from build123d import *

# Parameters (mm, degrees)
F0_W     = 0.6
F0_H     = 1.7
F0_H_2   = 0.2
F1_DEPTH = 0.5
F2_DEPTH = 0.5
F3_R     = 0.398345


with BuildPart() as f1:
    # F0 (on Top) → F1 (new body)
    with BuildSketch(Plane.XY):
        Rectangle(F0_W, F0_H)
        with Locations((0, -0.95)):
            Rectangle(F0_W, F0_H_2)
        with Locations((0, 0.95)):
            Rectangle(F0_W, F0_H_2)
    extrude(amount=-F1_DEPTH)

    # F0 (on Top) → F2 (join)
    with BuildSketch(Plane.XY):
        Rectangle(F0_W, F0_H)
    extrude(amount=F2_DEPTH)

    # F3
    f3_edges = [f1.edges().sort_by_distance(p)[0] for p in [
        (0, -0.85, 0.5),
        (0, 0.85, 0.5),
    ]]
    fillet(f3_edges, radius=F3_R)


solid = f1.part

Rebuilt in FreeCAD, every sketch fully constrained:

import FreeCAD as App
import Part
import Sketcher


def edges_at(feature, points):
    """Names of the edges that pass closest to the given points."""
    edges = feature.Shape.Edges
    near = lambda p: min(range(len(edges)), key=lambda i: edges[i].distToShape(Part.Vertex(*p))[0])
    return sorted({f"Edge{near(p) + 1}" for p in points})


def add_polygon(sketch, points):
    """Adds a closed chain of lines whose ends are joined by coincident constraints."""
    first, n = sketch.GeometryCount, len(points)
    for a, b in zip(points, points[1:] + points[:1]):
        sketch.addGeometry(Part.LineSegment(App.Vector(*a, 0), App.Vector(*b, 0)), False)
    for i in range(n):
        sketch.addConstraint(Sketcher.Constraint("Coincident", first + i, 2, first + (i + 1) % n, 1))

doc = App.newDocument("Part")
params = doc.addObject("Spreadsheet::Sheet", "Params")
for row, (alias, value) in enumerate([
    ("sketch1_width", "0.6 mm"),
    ("sketch1_height", "2.1 mm"),
    ("pad1_length", "0.5 mm"),
    ("sketch2_width", "0.6 mm"),
    ("sketch2_height", "1.7 mm"),
    ("pad2_length", "0.5 mm"),
    ("fillet_radius", "0.398345 mm"),
], start=1):
    params.set(f"A{row}", alias)
    params.set(f"B{row}", "=" + value)
    params.setAlias(f"B{row}", alias)

body = doc.addObject("PartDesign::Body", "Body")

# Sketch on XY plane
sketch1 = body.newObject("Sketcher::SketchObject", "Sketch")
sketch1.AttachmentSupport = (doc.getObject("XY_Plane"), [""])
sketch1.MapMode = "FlatFace"
add_polygon(sketch1, [(-0.3, -1.05), (0.3, -1.05), (0.3, 1.05), (-0.3, 1.05)])  # lines 0-3
sketch1.addConstraint(Sketcher.Constraint("Horizontal", 0))
sketch1.addConstraint(Sketcher.Constraint("Vertical", 1))
sketch1.addConstraint(Sketcher.Constraint("Horizontal", 2))
sketch1.addConstraint(Sketcher.Constraint("Vertical", 3))
sketch1.addConstraint(Sketcher.Constraint("Symmetric", 0, 2, 2, 2, -1, 1))
sketch1.addConstraint(Sketcher.Constraint("DistanceX", 0, 1, 0, 2, 0.6))
sketch1.addConstraint(Sketcher.Constraint("DistanceY", 1, 1, 1, 2, 2.1))
sketch1.setExpression("Constraints[9]", "Params.sketch1_width")
sketch1.setExpression("Constraints[10]", "Params.sketch1_height")
pad1 = body.newObject("PartDesign::Pad", "Pad")
pad1.Profile = sketch1
pad1.setExpression("Length", "Params.pad1_length")
pad1.Reversed = True

# Sketch on XY plane
sketch2 = body.newObject("Sketcher::SketchObject", "Sketch001")
sketch2.AttachmentSupport = (doc.getObject("XY_Plane"), [""])
sketch2.MapMode = "FlatFace"
add_polygon(sketch2, [(-0.3, 0.85), (-0.3, -0.85), (0.3, -0.85), (0.3, 0.85)])  # lines 0-3
sketch2.addConstraint(Sketcher.Constraint("Vertical", 0))
sketch2.addConstraint(Sketcher.Constraint("Horizontal", 1))
sketch2.addConstraint(Sketcher.Constraint("Vertical", 2))
sketch2.addConstraint(Sketcher.Constraint("Horizontal", 3))
sketch2.addConstraint(Sketcher.Constraint("Symmetric", 0, 2, 2, 2, -1, 1))
sketch2.addConstraint(Sketcher.Constraint("DistanceX", 1, 1, 1, 2, 0.6))
sketch2.addConstraint(Sketcher.Constraint("DistanceY", 0, 2, 0, 1, 1.7))
sketch2.setExpression("Constraints[9]", "Params.sketch2_width")
sketch2.setExpression("Constraints[10]", "Params.sketch2_height")
pad2 = body.newObject("PartDesign::Pad", "Pad001")
pad2.Profile = sketch2
pad2.setExpression("Length", "Params.pad2_length")
doc.recompute()

fillet = body.newObject("PartDesign::Fillet", "Fillet")
fillet.Base = (pad2, edges_at(pad2, [(0, -0.85, 0.5), (0, 0.85, 0.5)]))
fillet.setExpression("Radius", "Params.fillet_radius")

doc.recompute()
